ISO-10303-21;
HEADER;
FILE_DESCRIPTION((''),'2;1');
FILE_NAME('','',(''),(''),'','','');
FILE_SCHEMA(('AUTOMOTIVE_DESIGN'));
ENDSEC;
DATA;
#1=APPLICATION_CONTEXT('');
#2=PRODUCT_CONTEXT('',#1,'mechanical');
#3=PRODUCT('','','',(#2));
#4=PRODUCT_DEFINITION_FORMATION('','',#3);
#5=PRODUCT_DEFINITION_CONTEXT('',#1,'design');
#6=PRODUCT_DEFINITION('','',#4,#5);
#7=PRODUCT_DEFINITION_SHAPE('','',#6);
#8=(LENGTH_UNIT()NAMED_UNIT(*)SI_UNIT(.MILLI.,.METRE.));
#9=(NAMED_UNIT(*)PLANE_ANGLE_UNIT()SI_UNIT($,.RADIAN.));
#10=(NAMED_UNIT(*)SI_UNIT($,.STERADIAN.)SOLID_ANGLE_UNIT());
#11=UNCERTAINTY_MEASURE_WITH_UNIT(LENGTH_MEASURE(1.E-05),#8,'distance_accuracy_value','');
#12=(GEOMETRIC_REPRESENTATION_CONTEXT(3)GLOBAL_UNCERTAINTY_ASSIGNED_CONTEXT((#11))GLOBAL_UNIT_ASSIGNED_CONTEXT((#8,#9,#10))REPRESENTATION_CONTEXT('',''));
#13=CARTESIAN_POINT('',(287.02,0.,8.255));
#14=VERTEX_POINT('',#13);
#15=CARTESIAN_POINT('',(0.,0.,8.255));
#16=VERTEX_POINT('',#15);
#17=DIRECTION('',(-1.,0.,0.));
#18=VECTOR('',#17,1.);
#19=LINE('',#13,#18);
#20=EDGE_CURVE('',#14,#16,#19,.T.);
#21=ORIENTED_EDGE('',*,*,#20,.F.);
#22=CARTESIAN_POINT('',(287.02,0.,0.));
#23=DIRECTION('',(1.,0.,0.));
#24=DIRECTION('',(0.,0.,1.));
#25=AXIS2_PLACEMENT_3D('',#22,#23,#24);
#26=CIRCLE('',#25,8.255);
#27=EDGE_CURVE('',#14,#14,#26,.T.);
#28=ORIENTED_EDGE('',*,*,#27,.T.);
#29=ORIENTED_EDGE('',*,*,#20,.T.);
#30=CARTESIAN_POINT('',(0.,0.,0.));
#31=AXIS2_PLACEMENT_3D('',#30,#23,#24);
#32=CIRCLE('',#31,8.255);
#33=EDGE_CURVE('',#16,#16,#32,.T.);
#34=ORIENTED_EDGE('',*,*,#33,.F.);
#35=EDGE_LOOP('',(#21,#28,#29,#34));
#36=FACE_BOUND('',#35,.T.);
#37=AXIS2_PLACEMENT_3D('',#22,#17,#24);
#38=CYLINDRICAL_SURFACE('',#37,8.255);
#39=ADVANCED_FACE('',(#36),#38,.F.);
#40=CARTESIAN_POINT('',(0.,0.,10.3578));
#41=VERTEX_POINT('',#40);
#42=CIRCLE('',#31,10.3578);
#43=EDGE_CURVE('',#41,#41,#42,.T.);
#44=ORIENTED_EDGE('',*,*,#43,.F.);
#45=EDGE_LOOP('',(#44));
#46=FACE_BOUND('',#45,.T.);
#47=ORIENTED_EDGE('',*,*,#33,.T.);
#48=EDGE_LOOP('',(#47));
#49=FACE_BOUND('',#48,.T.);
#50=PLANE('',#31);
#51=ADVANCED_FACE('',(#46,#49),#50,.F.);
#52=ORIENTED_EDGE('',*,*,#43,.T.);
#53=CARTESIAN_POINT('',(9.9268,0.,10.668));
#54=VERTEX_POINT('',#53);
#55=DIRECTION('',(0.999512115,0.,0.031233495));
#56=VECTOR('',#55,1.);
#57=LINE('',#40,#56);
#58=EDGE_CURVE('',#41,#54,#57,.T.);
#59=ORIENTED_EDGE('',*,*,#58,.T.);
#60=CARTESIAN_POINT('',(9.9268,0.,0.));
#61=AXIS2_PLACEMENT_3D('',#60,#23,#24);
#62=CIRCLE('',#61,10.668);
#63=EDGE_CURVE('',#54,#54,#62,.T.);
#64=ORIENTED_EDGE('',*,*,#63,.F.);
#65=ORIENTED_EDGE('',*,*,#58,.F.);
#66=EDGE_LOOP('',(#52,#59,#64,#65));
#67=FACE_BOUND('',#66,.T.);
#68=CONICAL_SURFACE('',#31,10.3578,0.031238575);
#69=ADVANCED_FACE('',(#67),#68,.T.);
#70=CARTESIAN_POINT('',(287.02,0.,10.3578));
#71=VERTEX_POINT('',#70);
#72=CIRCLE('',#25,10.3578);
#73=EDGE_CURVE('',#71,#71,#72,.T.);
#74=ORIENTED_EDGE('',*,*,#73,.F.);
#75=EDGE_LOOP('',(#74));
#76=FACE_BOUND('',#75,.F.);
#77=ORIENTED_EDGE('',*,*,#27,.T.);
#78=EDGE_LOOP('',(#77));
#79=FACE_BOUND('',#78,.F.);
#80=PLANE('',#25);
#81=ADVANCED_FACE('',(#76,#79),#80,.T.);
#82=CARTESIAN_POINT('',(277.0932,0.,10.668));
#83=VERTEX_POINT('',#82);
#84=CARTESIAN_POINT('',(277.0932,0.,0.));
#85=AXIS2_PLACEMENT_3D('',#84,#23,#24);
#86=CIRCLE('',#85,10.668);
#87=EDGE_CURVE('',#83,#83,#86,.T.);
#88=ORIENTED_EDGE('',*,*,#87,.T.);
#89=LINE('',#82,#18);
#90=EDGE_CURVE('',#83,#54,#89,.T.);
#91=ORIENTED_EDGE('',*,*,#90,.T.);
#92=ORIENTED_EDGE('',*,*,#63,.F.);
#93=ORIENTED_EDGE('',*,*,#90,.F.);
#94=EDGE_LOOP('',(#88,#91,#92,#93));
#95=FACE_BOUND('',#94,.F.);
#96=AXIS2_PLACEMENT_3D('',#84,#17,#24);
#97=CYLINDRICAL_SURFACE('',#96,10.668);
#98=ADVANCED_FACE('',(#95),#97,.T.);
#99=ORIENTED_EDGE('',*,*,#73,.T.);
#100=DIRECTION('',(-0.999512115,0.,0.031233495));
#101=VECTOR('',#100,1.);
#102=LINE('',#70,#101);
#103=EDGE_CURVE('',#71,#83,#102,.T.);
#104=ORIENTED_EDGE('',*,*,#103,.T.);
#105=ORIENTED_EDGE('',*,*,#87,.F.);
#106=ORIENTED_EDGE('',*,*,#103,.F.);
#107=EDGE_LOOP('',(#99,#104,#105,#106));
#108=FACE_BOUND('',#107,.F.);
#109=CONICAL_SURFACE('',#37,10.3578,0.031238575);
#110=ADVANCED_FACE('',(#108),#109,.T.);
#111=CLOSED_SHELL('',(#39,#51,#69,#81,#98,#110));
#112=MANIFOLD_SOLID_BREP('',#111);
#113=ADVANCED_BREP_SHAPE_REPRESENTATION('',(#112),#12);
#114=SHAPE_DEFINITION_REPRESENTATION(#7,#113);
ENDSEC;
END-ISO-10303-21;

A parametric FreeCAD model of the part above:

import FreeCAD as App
import Part
import Sketcher
from FreeCAD import Vector
Q = App.Units.Quantity

doc = App.newDocument("Part")
body = doc.addObject("PartDesign::Body", "Body")

sketch1 = body.newObject("Sketcher::SketchObject", "Sketch")
sketch1.AttachmentSupport = (doc.getObject("XZ_Plane"), [""])
sketch1.MapMode = "FlatFace"
sketch1.addGeometry(Part.LineSegment(Vector(287, 10.4, 0), Vector(287, 8.3, 0)), False)
sketch1.addGeometry(Part.LineSegment(Vector(287, 8.3, 0), Vector(0, 8.3, 0)), False)
sketch1.addGeometry(Part.LineSegment(Vector(0, 8.3, 0), Vector(0, 10.4, 0)), False)
sketch1.addGeometry(Part.LineSegment(Vector(0, 10.4, 0), Vector(9.9, 10.7, 0)), False)
sketch1.addGeometry(Part.LineSegment(Vector(9.9, 10.7, 0), Vector(277.1, 10.7, 0)), False)
sketch1.addGeometry(Part.LineSegment(Vector(277.1, 10.7, 0), Vector(287, 10.4, 0)), False)
sketch1.addConstraint(Sketcher.Constraint("Coincident", 0, 2, 1, 1))
sketch1.addConstraint(Sketcher.Constraint("Coincident", 1, 2, 2, 1))
sketch1.addConstraint(Sketcher.Constraint("Coincident", 2, 2, 3, 1))
sketch1.addConstraint(Sketcher.Constraint("Coincident", 3, 2, 4, 1))
sketch1.addConstraint(Sketcher.Constraint("Coincident", 4, 2, 5, 1))
sketch1.addConstraint(Sketcher.Constraint("Coincident", 5, 2, 0, 1))
sketch1.addConstraint(Sketcher.Constraint("Vertical", 0))
sketch1.addConstraint(Sketcher.Constraint("Horizontal", 1))
sketch1.addConstraint(Sketcher.Constraint("Vertical", 2))
sketch1.addConstraint(Sketcher.Constraint("Horizontal", 4))
sketch1.addConstraint(Sketcher.Constraint("PointOnObject", 1, 2, -2))
sketch1.addConstraint(Sketcher.Constraint("Horizontal", 2, 2, 5, 2))
sketch1.addConstraint(Sketcher.Constraint("Equal", 3, 5))
sketch1.addConstraint(Sketcher.Constraint("DistanceX", 1, 2, 1, 1, Q("11.3 in")))
sketch1.addConstraint(Sketcher.Constraint("Angle", 3, Q("1.7898 deg")))
sketch1.addConstraint(Sketcher.Constraint("DistanceY", -1, 1, 3, 2, Q("0.42 in")))
sketch1.addConstraint(Sketcher.Constraint("Distance", 3, Q("0.391 in")))
sketch1.addConstraint(Sketcher.Constraint("DistanceY", -1, 1, 0, 2, Q("0.325 in")))
revolution = body.newObject("PartDesign::Revolution", "Revolution")
revolution.Profile = sketch1
revolution.ReferenceAxis = (sketch1, ["H_Axis"])
revolution.Angle = 360

doc.recompute()
